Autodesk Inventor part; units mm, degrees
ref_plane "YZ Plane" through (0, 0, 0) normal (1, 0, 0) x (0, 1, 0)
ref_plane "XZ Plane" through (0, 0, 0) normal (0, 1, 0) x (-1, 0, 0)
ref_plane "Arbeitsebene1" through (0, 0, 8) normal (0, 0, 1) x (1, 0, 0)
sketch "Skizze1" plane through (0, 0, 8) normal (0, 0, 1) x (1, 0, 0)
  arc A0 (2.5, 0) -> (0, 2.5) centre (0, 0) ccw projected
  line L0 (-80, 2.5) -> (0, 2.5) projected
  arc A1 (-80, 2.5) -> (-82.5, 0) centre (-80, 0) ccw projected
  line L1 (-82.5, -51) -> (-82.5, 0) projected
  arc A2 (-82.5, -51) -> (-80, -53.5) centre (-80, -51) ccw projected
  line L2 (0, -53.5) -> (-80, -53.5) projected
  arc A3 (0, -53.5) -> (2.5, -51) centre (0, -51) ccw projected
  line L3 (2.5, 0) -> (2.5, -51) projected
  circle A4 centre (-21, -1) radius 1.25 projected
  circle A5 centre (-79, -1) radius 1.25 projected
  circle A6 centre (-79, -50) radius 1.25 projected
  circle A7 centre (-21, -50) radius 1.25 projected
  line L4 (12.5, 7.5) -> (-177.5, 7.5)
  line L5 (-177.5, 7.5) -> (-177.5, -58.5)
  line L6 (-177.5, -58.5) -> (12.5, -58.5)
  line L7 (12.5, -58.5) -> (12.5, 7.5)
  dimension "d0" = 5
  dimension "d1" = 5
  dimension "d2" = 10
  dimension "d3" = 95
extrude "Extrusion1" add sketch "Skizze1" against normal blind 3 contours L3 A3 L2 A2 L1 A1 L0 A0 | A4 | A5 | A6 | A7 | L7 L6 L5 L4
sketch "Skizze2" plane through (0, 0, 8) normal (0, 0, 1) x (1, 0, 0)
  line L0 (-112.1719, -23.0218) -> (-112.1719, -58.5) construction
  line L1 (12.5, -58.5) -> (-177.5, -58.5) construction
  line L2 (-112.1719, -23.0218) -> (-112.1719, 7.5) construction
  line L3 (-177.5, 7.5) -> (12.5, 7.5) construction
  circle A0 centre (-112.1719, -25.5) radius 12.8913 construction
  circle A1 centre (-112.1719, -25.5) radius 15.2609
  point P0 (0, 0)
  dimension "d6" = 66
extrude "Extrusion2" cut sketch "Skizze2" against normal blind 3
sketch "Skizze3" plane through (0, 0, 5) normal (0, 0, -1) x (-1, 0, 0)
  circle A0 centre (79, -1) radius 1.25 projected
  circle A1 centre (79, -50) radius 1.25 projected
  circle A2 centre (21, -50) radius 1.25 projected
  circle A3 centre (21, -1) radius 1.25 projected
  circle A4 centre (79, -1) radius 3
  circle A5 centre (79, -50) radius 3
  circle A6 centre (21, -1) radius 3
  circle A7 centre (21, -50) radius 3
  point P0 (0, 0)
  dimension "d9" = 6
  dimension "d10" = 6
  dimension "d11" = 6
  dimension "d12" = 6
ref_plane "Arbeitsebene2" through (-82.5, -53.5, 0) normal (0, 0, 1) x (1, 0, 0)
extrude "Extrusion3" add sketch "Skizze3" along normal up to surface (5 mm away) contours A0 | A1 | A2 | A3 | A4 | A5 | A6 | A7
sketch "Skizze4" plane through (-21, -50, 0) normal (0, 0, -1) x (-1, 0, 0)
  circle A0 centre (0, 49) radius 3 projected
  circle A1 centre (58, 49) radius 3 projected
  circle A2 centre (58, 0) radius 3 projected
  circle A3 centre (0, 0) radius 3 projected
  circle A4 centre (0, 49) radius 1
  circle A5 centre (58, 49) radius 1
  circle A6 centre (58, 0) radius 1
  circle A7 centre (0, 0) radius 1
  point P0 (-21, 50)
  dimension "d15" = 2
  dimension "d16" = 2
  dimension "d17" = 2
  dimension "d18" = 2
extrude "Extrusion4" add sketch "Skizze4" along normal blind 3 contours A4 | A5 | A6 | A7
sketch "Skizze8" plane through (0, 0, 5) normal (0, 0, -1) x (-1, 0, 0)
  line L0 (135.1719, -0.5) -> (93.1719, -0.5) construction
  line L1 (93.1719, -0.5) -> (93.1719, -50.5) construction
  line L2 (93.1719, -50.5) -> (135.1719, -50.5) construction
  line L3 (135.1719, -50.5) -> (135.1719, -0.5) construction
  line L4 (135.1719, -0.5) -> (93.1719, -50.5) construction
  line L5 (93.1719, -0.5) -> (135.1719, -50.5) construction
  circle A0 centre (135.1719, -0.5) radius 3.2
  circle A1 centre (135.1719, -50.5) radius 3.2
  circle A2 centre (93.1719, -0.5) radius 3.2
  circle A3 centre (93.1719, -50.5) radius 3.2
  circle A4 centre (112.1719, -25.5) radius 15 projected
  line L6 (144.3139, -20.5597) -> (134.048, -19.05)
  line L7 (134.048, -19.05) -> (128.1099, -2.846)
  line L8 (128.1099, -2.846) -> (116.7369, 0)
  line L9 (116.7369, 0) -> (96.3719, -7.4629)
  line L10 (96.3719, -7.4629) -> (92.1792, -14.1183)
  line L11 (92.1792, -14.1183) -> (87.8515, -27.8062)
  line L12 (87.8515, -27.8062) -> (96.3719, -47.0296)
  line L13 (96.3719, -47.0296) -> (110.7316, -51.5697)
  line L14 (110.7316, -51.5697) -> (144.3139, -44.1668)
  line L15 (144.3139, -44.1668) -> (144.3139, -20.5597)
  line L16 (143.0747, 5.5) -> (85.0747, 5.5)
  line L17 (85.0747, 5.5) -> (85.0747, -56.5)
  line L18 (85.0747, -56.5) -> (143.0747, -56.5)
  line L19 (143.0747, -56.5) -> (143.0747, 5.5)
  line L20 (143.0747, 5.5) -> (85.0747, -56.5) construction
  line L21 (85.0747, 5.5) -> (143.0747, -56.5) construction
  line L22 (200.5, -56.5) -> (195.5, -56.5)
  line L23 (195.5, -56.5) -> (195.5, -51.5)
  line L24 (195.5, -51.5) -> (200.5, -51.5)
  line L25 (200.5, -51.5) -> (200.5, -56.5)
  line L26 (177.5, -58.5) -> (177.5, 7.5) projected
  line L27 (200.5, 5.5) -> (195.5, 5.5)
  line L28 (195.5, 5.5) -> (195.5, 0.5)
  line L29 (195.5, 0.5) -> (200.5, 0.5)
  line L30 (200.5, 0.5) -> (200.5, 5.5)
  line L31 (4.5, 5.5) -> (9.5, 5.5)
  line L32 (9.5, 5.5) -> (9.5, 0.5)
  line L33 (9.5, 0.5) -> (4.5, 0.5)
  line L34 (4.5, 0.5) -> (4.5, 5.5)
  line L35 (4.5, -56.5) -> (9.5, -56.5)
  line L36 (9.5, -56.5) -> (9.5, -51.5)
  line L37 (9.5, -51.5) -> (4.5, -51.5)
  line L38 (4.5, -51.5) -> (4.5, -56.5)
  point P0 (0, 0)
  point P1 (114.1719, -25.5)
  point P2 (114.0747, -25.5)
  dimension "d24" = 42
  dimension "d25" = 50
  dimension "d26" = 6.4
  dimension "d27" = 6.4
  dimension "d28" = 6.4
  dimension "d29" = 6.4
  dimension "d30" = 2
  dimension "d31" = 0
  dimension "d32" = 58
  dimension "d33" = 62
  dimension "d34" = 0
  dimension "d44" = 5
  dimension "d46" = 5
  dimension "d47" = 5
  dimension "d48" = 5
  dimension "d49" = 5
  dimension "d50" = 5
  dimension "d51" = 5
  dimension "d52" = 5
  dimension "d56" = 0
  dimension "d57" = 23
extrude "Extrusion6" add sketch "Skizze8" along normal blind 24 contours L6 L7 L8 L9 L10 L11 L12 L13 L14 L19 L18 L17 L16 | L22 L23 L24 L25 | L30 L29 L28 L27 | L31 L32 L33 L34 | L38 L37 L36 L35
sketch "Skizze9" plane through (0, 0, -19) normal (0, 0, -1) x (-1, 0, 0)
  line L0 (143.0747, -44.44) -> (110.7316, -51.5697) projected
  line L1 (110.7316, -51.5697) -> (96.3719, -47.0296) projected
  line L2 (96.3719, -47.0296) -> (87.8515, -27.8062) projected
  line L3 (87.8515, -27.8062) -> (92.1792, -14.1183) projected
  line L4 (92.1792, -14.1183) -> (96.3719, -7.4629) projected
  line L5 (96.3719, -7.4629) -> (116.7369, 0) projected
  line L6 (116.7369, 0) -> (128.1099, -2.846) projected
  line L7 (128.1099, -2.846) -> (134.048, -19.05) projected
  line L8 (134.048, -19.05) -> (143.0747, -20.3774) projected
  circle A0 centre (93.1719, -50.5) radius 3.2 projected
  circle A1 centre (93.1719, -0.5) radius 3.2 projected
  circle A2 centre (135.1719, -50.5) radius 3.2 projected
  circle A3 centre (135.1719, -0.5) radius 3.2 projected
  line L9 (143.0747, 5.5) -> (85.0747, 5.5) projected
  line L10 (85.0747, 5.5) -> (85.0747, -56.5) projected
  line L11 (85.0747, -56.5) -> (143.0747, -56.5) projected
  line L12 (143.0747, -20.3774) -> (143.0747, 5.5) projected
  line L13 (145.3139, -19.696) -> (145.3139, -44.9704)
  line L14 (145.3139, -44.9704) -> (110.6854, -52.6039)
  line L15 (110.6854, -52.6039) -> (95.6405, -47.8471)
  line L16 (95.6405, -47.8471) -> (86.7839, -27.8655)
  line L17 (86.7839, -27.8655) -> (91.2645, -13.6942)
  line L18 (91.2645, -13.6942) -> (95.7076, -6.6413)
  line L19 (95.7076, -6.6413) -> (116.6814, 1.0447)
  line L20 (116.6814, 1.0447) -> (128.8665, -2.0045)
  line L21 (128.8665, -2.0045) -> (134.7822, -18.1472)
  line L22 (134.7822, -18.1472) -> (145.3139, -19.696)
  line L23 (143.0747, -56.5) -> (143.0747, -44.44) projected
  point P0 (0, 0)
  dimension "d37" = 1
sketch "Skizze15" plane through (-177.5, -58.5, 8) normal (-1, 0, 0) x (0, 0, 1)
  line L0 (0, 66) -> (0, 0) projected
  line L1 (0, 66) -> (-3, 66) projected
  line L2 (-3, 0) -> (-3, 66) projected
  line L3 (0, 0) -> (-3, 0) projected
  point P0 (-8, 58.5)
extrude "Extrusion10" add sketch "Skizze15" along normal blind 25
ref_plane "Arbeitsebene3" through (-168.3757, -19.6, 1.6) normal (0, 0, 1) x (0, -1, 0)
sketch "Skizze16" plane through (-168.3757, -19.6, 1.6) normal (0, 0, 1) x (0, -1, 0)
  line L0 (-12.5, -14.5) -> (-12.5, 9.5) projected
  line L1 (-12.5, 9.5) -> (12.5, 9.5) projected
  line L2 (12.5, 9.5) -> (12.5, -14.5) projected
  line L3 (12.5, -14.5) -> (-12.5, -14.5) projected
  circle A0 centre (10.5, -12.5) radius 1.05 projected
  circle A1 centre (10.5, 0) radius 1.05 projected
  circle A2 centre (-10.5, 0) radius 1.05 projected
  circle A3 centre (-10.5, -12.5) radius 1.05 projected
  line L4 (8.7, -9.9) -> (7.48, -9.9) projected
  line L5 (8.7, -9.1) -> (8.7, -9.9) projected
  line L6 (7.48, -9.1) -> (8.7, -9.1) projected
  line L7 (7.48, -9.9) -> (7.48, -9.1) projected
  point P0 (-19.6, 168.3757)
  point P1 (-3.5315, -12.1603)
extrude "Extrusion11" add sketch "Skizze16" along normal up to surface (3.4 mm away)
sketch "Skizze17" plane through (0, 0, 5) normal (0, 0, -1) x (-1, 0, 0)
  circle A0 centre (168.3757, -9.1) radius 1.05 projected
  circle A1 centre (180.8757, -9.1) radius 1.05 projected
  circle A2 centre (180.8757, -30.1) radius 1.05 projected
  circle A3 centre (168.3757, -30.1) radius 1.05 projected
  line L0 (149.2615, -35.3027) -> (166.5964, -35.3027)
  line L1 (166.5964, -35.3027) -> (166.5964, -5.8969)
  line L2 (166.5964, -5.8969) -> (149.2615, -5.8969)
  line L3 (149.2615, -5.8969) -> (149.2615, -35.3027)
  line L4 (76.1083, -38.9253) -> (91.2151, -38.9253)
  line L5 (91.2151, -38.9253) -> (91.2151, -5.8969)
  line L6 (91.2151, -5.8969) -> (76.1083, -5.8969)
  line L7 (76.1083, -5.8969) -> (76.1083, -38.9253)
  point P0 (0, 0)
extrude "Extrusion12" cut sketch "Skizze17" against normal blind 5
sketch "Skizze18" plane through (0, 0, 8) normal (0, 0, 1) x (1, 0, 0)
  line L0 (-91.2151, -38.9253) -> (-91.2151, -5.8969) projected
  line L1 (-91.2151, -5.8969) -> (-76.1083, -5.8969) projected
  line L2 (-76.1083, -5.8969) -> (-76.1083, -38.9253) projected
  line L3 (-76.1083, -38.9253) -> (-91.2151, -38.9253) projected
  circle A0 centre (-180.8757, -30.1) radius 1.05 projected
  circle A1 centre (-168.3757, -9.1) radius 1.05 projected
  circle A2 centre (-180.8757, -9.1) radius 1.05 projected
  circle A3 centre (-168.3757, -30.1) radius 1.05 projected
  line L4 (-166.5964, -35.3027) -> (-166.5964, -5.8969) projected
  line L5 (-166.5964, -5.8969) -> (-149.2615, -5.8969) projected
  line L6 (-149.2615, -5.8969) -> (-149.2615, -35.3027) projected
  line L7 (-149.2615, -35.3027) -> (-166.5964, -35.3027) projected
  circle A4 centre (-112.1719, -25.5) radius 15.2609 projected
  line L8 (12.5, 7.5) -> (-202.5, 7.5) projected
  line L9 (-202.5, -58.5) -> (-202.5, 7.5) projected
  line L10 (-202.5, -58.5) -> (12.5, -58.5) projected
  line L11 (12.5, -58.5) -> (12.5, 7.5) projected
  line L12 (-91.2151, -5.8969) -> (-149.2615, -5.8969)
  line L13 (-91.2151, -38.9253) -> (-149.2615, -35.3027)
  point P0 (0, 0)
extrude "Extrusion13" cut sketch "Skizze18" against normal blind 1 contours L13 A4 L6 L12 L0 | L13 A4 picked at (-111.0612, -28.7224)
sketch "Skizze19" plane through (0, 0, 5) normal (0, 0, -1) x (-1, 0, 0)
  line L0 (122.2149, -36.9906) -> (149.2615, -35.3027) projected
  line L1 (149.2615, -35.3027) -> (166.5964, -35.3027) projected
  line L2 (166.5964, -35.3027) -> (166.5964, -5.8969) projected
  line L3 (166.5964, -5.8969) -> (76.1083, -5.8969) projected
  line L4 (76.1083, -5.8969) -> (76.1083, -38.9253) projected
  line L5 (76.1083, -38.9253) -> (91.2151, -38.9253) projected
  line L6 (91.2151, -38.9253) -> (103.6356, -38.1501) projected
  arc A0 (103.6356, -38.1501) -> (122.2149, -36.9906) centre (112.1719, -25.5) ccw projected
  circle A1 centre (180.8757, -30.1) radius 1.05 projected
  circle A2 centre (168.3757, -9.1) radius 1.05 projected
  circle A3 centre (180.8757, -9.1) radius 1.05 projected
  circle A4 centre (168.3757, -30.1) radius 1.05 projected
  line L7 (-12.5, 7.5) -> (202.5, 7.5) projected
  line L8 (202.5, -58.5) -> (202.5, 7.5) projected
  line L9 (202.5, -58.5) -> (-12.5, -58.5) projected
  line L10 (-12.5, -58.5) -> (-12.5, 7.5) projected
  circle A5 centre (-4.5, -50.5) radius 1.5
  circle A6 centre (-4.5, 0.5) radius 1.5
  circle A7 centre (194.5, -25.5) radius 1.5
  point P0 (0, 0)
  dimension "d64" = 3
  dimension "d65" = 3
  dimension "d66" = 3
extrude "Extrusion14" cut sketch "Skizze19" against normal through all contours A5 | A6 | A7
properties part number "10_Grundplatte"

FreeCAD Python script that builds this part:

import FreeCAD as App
import Part
import Sketcher

V = App.Vector
Q = App.Units.Quantity


def add_polygon(sketch, points):
    """Adds a closed chain of lines whose ends are joined by coincident constraints."""
    first, n = sketch.GeometryCount, len(points)
    for a, b in zip(points, points[1:] + points[:1]):
        sketch.addGeometry(Part.LineSegment(App.Vector(*a, 0), App.Vector(*b, 0)), False)
    for i in range(n):
        sketch.addConstraint(Sketcher.Constraint("Coincident", first + i, 2, first + (i + 1) % n, 1))

doc = App.newDocument("Part")
params = doc.addObject("Spreadsheet::Sheet", "Params")
for row, (alias, value) in enumerate([
    ("sketch1_width", "190 mm"),
    ("sketch1_height", "66 mm"),
    ("pad1_length", "3 mm"),
    ("pocket1_length", "3 mm"),
    ("sketch3_diameter", "6 mm"),
    ("pad2_length", "5 mm"),
    ("sketch4_diameter", "2 mm"),
    ("pad3_length", "3 mm"),
    ("sketch5_diameter", "6.4 mm"),
    ("sketch5_width", "58 mm"),
    ("sketch5_width2", "5 mm"),
    ("sketch5_height", "62 mm"),
    ("sketch5_height2", "12.06 mm"),
    ("pad4_length", "24 mm"),
    ("sketch6_width", "66 mm"),
    ("sketch6_height", "3 mm"),
    ("pad5_length", "25 mm"),
    ("sketch7_diameter", "2.1 mm"),
    ("sketch7_width", "24 mm"),
    ("sketch7_height", "25 mm"),
    ("sketch7_width2", "0.8 mm"),
    ("sketch7_height2", "1.22 mm"),
    ("pad6_length", "3.4 mm"),
    ("sketch8_diameter", "2.1 mm"),
    ("pocket2_length", "5 mm"),
    ("pocket3_length", "1 mm"),
    ("sketch10_diameter", "3 mm"),
], start=1):
    params.set(f"A{row}", alias)
    params.set(f"B{row}", "=" + value)
    params.setAlias(f"B{row}", alias)

body = doc.addObject("PartDesign::Body", "Body")
body.AllowCompound = True

# Sketch on XY plane
sketch1 = body.newObject("Sketcher::SketchObject", "Sketch")
sketch1.AttachmentSupport = (doc.getObject("XY_Plane"), [""])
sketch1.MapMode = "FlatFace"
sketch1.AttachmentOffset = App.Placement(V(0, 0, 8), App.Rotation())
add_polygon(sketch1, [(12, -58), (12, 8), (-178, 8), (-178, -58)])  # lines 0-3
sketch1.addConstraint(Sketcher.Constraint("Vertical", 0))
sketch1.addConstraint(Sketcher.Constraint("Horizontal", 1))
sketch1.addConstraint(Sketcher.Constraint("Vertical", 2))
sketch1.addConstraint(Sketcher.Constraint("Horizontal", 3))
sketch1.addConstraint(Sketcher.Constraint("DistanceX", 1, 2, 1, 1, Q("190 mm")))
sketch1.addConstraint(Sketcher.Constraint("DistanceY", 0, 1, 0, 2, Q("66 mm")))
sketch1.addConstraint(Sketcher.Constraint("DistanceX", -1, 1, 0, 2, Q("12.5 mm")))
sketch1.addConstraint(Sketcher.Constraint("DistanceY", -1, 1, 0, 2, Q("7.5 mm")))
sketch1.setExpression("Constraints[8]", "Params.sketch1_width")
sketch1.setExpression("Constraints[9]", "Params.sketch1_height")
pad1 = body.newObject("PartDesign::Pad", "Pad")
pad1.Profile = sketch1
pad1.setExpression("Length", "Params.pad1_length")
pad1.Reversed = True

# Sketch on XY plane
sketch2 = body.newObject("Sketcher::SketchObject", "Sketch001")
sketch2.AttachmentSupport = (doc.getObject("XY_Plane"), [""])
sketch2.MapMode = "FlatFace"
sketch2.AttachmentOffset = App.Placement(V(0, 0, 8), App.Rotation())
sketch2.addGeometry(Part.Circle(V(-112, -26, 0), V(0, 0, 1), 15), False)
sketch2.addConstraint(Sketcher.Constraint("Diameter", 0, Q("30.5218 mm")))
sketch2.addConstraint(Sketcher.Constraint("DistanceY", 0, 3, -1, 1, Q("25.5 mm")))
sketch2.addConstraint(Sketcher.Constraint("DistanceX", 0, 3, -1, 1, Q("112.172 mm")))
pocket1 = body.newObject("PartDesign::Pocket", "Pocket")
pocket1.Profile = sketch2
pocket1.setExpression("Length", "Params.pocket1_length")

# Sketch on XY plane
sketch3 = body.newObject("Sketcher::SketchObject", "Sketch002")
sketch3.AttachmentSupport = (doc.getObject("XY_Plane"), [""])
sketch3.MapMode = "FlatFace"
sketch3.AttachmentOffset = App.Placement(V(0, 0, 5), App.Rotation())
sketch3.addGeometry(Part.Circle(V(-79, -1, 0), V(0, 0, 1), 3), False)
sketch3.addGeometry(Part.Circle(V(-79, -50, 0), V(0, 0, 1), 3), False)
sketch3.addGeometry(Part.Circle(V(-21, -50, 0), V(0, 0, 1), 3), False)
sketch3.addGeometry(Part.Circle(V(-21, -1, 0), V(0, 0, 1), 3), False)
sketch3.addConstraint(Sketcher.Constraint("Equal", 0, 1))
sketch3.addConstraint(Sketcher.Constraint("Equal", 1, 2))
sketch3.addConstraint(Sketcher.Constraint("Equal", 2, 3))
sketch3.addConstraint(Sketcher.Constraint("Horizontal", 1, 3, 2, 3))
sketch3.addConstraint(Sketcher.Constraint("Horizontal", 0, 3, 3, 3))
sketch3.addConstraint(Sketcher.Constraint("Vertical", 0, 3, 1, 3))
sketch3.addConstraint(Sketcher.Constraint("Vertical", 2, 3, 3, 3))
sketch3.addConstraint(Sketcher.Constraint("Diameter", 0, Q("6 mm")))
sketch3.addConstraint(Sketcher.Constraint("DistanceX", 0, 3, -1, 1, Q("79 mm")))
sketch3.addConstraint(Sketcher.Constraint("DistanceY", 0, 3, -1, 1, Q("1 mm")))
sketch3.addConstraint(Sketcher.Constraint("DistanceY", 1, 3, -1, 1, Q("50 mm")))
sketch3.addConstraint(Sketcher.Constraint("DistanceX", 2, 3, -1, 1, Q("21 mm")))
sketch3.setExpression("Constraints[7]", "Params.sketch3_diameter")
pad2 = body.newObject("PartDesign::Pad", "Pad001")
pad2.Profile = sketch3
pad2.setExpression("Length", "Params.pad2_length")
pad2.Reversed = True

# Sketch on XY plane
sketch4 = body.newObject("Sketcher::SketchObject", "Sketch003")
sketch4.AttachmentSupport = (doc.getObject("XY_Plane"), [""])
sketch4.MapMode = "FlatFace"
sketch4.addGeometry(Part.Circle(V(-21, -1, 0), V(0, 0, 1), 1), False)
sketch4.addGeometry(Part.Circle(V(-79, -1, 0), V(0, 0, 1), 1), False)
sketch4.addGeometry(Part.Circle(V(-79, -50, 0), V(0, 0, 1), 1), False)
sketch4.addGeometry(Part.Circle(V(-21, -50, 0), V(0, 0, 1), 1), False)
sketch4.addConstraint(Sketcher.Constraint("Equal", 0, 1))
sketch4.addConstraint(Sketcher.Constraint("Equal", 1, 2))
sketch4.addConstraint(Sketcher.Constraint("Equal", 2, 3))
sketch4.addConstraint(Sketcher.Constraint("Horizontal", 0, 3, 1, 3))
sketch4.addConstraint(Sketcher.Constraint("Horizontal", 2, 3, 3, 3))
sketch4.addConstraint(Sketcher.Constraint("Vertical", 1, 3, 2, 3))
sketch4.addConstraint(Sketcher.Constraint("Vertical", 0, 3, 3, 3))
sketch4.addConstraint(Sketcher.Constraint("Diameter", 0, Q("2 mm")))
sketch4.addConstraint(Sketcher.Constraint("DistanceX", 0, 3, -1, 1, Q("21 mm")))
sketch4.addConstraint(Sketcher.Constraint("DistanceY", 0, 3, -1, 1, Q("1 mm")))
sketch4.addConstraint(Sketcher.Constraint("DistanceX", 1, 3, -1, 1, Q("79 mm")))
sketch4.addConstraint(Sketcher.Constraint("DistanceY", 2, 3, -1, 1, Q("50 mm")))
sketch4.setExpression("Constraints[7]", "Params.sketch4_diameter")
pad3 = body.newObject("PartDesign::Pad", "Pad002")
pad3.Profile = sketch4
pad3.setExpression("Length", "Params.pad3_length")
pad3.Reversed = True

# Sketch on XY plane
sketch5 = body.newObject("Sketcher::SketchObject", "Sketch004")
sketch5.AttachmentSupport = (doc.getObject("XY_Plane"), [""])
sketch5.MapMode = "FlatFace"
sketch5.AttachmentOffset = App.Placement(V(0, 0, 5), App.Rotation())
add_polygon(sketch5, [(-134, -19.1), (-143.1, -20.4), (-143.1, 5.5), (-85.1, 5.5), (-85.1, -56.5), (-143.1, -56.5), (-143.1, -44.4), (-110.7, -51.6), (-96.4, -47), (-87.9, -27.8), (-92.2, -14.1), (-96.4, -7.5), (-116.7, 0), (-128.1, -2.8)])  # lines 0-13
sketch5.addGeometry(Part.Circle(V(-93.2, -50.5, 0), V(0, 0, 1), 3.2), False)  # 14
sketch5.addGeometry(Part.Circle(V(-135.2, -50.5, 0), V(0, 0, 1), 3.2), False)  # 15
sketch5.addGeometry(Part.Circle(V(-93.2, -0.5, 0), V(0, 0, 1), 3.2), False)  # 16
sketch5.addGeometry(Part.Circle(V(-135.2, -0.5, 0), V(0, 0, 1), 3.2), False)  # 17
add_polygon(sketch5, [(-195.5, -56.5), (-200.5, -56.5), (-200.5, -51.5), (-195.5, -51.5)])  # lines 18-21
add_polygon(sketch5, [(-200.5, 0.5), (-200.5, 5.5), (-195.5, 5.5), (-195.5, 0.5)])  # lines 22-25
add_polygon(sketch5, [(-9.5, 5.5), (-4.5, 5.5), (-4.5, 0.5), (-9.5, 0.5)])  # lines 26-29
add_polygon(sketch5, [(-4.5, -51.5), (-4.5, -56.5), (-9.5, -56.5), (-9.5, -51.5)])  # lines 30-33
sketch5.addConstraint(Sketcher.Constraint("Vertical", 1))
sketch5.addConstraint(Sketcher.Constraint("Horizontal", 2))
sketch5.addConstraint(Sketcher.Constraint("Vertical", 3))
sketch5.addConstraint(Sketcher.Constraint("Horizontal", 4))
sketch5.addConstraint(Sketcher.Constraint("Vertical", 5))
sketch5.addConstraint(Sketcher.Constraint("Horizontal", 18))
sketch5.addConstraint(Sketcher.Constraint("Vertical", 19))
sketch5.addConstraint(Sketcher.Constraint("Horizontal", 20))
sketch5.addConstraint(Sketcher.Constraint("Vertical", 21))
sketch5.addConstraint(Sketcher.Constraint("Vertical", 22))
sketch5.addConstraint(Sketcher.Constraint("Horizontal", 23))
sketch5.addConstraint(Sketcher.Constraint("Vertical", 24))
sketch5.addConstraint(Sketcher.Constraint("Horizontal", 25))
sketch5.addConstraint(Sketcher.Constraint("Horizontal", 26))
sketch5.addConstraint(Sketcher.Constraint("Vertical", 27))
sketch5.addConstraint(Sketcher.Constraint("Horizontal", 28))
sketch5.addConstraint(Sketcher.Constraint("Vertical", 29))
sketch5.addConstraint(Sketcher.Constraint("Vertical", 30))
sketch5.addConstraint(Sketcher.Constraint("Horizontal", 31))
sketch5.addConstraint(Sketcher.Constraint("Vertical", 32))
sketch5.addConstraint(Sketcher.Constraint("Horizontal", 33))
sketch5.addConstraint(Sketcher.Constraint("Equal", 14, 15))
sketch5.addConstraint(Sketcher.Constraint("Equal", 15, 16))
sketch5.addConstraint(Sketcher.Constraint("Equal", 16, 17))
sketch5.addConstraint(Sketcher.Constraint("PointOnObject", 11, 2, -1))
sketch5.addConstraint(Sketcher.Constraint("Perpendicular", 7, 9))
sketch5.addConstraint(Sketcher.Constraint("Perpendicular", 11, 13))
sketch5.addConstraint(Sketcher.Constraint("Horizontal", 14, 3, 15, 3))
sketch5.addConstraint(Sketcher.Constraint("Horizontal", 16, 3, 17, 3))
sketch5.addConstraint(Sketcher.Constraint("Horizontal", 4, 2, 18, 2))
sketch5.addConstraint(Sketcher.Constraint("Horizontal", 2, 2, 22, 2))
sketch5.addConstraint(Sketcher.Constraint("Horizontal", 23, 2, 26, 2))
sketch5.addConstraint(Sketcher.Constraint("Horizontal", 25, 2, 27, 2))
sketch5.addConstraint(Sketcher.Constraint("Horizontal", 21, 2, 30, 2))
sketch5.addConstraint(Sketcher.Constraint("Horizontal", 20, 2, 32, 2))
sketch5.addConstraint(Sketcher.Constraint("Vertical", 14, 3, 16, 3))
sketch5.addConstraint(Sketcher.Constraint("Vertical", 15, 3, 17, 3))
sketch5.addConstraint(Sketcher.Constraint("Vertical", 1, 2, 4, 2))
sketch5.addConstraint(Sketcher.Constraint("Vertical", 7, 2, 10, 2))
sketch5.addConstraint(Sketcher.Constraint("Vertical", 19, 2, 22, 2))
sketch5.addConstraint(Sketcher.Constraint("Vertical", 21, 2, 23, 2))
sketch5.addConstraint(Sketcher.Constraint("Vertical", 27, 2, 30, 2))
sketch5.addConstraint(Sketcher.Constraint("Vertical", 29, 2, 31, 2))
sketch5.addConstraint(Sketcher.Constraint("Equal", 25, 26))
sketch5.addConstraint(Sketcher.Constraint("Equal", 33, 19))
sketch5.addConstraint(Sketcher.Constraint("Equal", 21, 22))
sketch5.addConstraint(Sketcher.Constraint("Diameter", 14, Q("6.4 mm")))
sketch5.addConstraint(Sketcher.Constraint("DistanceX", 2, 1, 2, 2, Q("58 mm")))
sketch5.addConstraint(Sketcher.Constraint("DistanceX", 18, 2, 18, 1, Q("5 mm")))
sketch5.addConstraint(Sketcher.Constraint("DistanceY", 3, 2, 3, 1, Q("62 mm")))
sketch5.addConstraint(Sketcher.Constraint("DistanceX", 15, 3, 14, 3, Q("42 mm")))
sketch5.addConstraint(Sketcher.Constraint("DistanceY", 14, 3, 16, 3, Q("50 mm")))
sketch5.addConstraint(Sketcher.Constraint("DistanceY", 17, 3, 1, 2, Q("6 mm")))
sketch5.addConstraint(Sketcher.Constraint("DistanceY", 5, 1, 5, 2, Q("12.06 mm")))
sketch5.addConstraint(Sketcher.Constraint("DistanceY", 14, 3, -1, 1, Q("50.5 mm")))
sketch5.addConstraint(Sketcher.Constraint("DistanceX", 18, 2, -1, 1, Q("200.5 mm")))
sketch5.addConstraint(Sketcher.Constraint("DistanceX", 26, 2, -1, 1, Q("4.5 mm")))
sketch5.addConstraint(Sketcher.Constraint("Angle", 10, Q("122.2097 deg")))
sketch5.addConstraint(Sketcher.Constraint("Angle", 12, Q("-165.9507 deg")))
sketch5.addConstraint(Sketcher.Constraint("DistanceX", 7, 2, 14, 3, Q("3.2 mm")))
sketch5.addConstraint(Sketcher.Constraint("DistanceX", 12, 2, -1, 1, Q("128.11 mm")))
sketch5.addConstraint(Sketcher.Constraint("DistanceY", 13, 2, -1, 1, Q("19.05 mm")))
sketch5.addConstraint(Sketcher.Constraint("DistanceY", 6, 2, 7, 2, Q("4.54 mm")))
sketch5.addConstraint(Sketcher.Constraint("DistanceX", 6, 2, 8, 2, Q("22.88 mm")))
sketch5.addConstraint(Sketcher.Constraint("Distance", 8, Q("21.027 mm")))
sketch5.addConstraint(Sketcher.Constraint("Distance", 10, Q("7.866 mm")))
sketch5.addConstraint(Sketcher.Constraint("DistanceY", 1, 1, 1, 2, Q("25.8775 mm")))
sketch5.addConstraint(Sketcher.Constraint("DistanceX", 14, 3, -1, 1, Q("93.172 mm")))
sketch5.addConstraint(Sketcher.Constraint("DistanceY", 10, 2, -1, 1, Q("7.463 mm")))
sketch5.addConstraint(Sketcher.Constraint("DistanceX", 11, 2, -1, 1, Q("116.737 mm")))
sketch5.addConstraint(Sketcher.Constraint("DistanceX", 6, 2, 3, 2, Q("25.657 mm")))
sketch5.addConstraint(Sketcher.Constraint("DistanceY", 8, 2, 9, 2, Q("13.688 mm")))
sketch5.setExpression("Constraints[76]", "Params.sketch5_diameter")
sketch5.setExpression("Constraints[77]", "Params.sketch5_width")
sketch5.setExpression("Constraints[78]", "Params.sketch5_width2")
sketch5.setExpression("Constraints[79]", "Params.sketch5_height")
sketch5.setExpression("Constraints[83]", "Params.sketch5_height2")
pad4 = body.newObject("PartDesign::Pad", "Pad003")
pad4.Profile = sketch5
pad4.setExpression("Length", "Params.pad4_length")
pad4.Reversed = True

# Sketch on YZ plane
sketch6 = body.newObject("Sketcher::SketchObject", "Sketch005")
sketch6.AttachmentSupport = (doc.getObject("YZ_Plane"), [""])
sketch6.MapMode = "FlatFace"
sketch6.AttachmentOffset = App.Placement(V(0, 0, -177.5), App.Rotation())
add_polygon(sketch6, [(-58.5, 8), (7.5, 8), (7.5, 5), (-58.5, 5)])  # lines 0-3
sketch6.addConstraint(Sketcher.Constraint("Horizontal", 0))
sketch6.addConstraint(Sketcher.Constraint("Vertical", 1))
sketch6.addConstraint(Sketcher.Constraint("Horizontal", 2))
sketch6.addConstraint(Sketcher.Constraint("Vertical", 3))
sketch6.addConstraint(Sketcher.Constraint("DistanceX", 0, 1, 0, 2, Q("66 mm")))
sketch6.addConstraint(Sketcher.Constraint("DistanceY", 1, 2, 1, 1, Q("3 mm")))
sketch6.addConstraint(Sketcher.Constraint("DistanceY", -1, 1, 0, 2, Q("8 mm")))
sketch6.addConstraint(Sketcher.Constraint("DistanceX", -1, 1, 0, 2, Q("7.5 mm")))
sketch6.setExpression("Constraints[8]", "Params.sketch6_width")
sketch6.setExpression("Constraints[9]", "Params.sketch6_height")
pad5 = body.newObject("PartDesign::Pad", "Pad004")
pad5.Profile = sketch6
pad5.setExpression("Length", "Params.pad5_length")
pad5.Reversed = True

# Sketch on XY plane
sketch7 = body.newObject("Sketcher::SketchObject", "Sketch006")
sketch7.AttachmentSupport = (doc.getObject("XY_Plane"), [""])
sketch7.MapMode = "FlatFace"
sketch7.AttachmentOffset = App.Placement(V(0, 0, 1.6), App.Rotation())
add_polygon(sketch7, [(-158.9, -7.1), (-182.9, -7.1), (-182.9, -32.1), (-158.9, -32.1)])  # lines 0-3
sketch7.addGeometry(Part.Circle(V(-180.9, -9.1, 0), V(0, 0, 1), 1.1), False)  # 4
sketch7.addGeometry(Part.Circle(V(-180.9, -30.1, 0), V(0, 0, 1), 1.1), False)  # 5
add_polygon(sketch7, [(-177.5, -28.3), (-178.3, -28.3), (-178.3, -27.1), (-177.5, -27.1)])  # lines 6-9
sketch7.addGeometry(Part.Circle(V(-168.4, -9.1, 0), V(0, 0, 1), 1.1), False)  # 10
sketch7.addGeometry(Part.Circle(V(-168.4, -30.1, 0), V(0, 0, 1), 1.1), False)  # 11
sketch7.addConstraint(Sketcher.Constraint("Horizontal", 0))
sketch7.addConstraint(Sketcher.Constraint("Vertical", 1))
sketch7.addConstraint(Sketcher.Constraint("Horizontal", 2))
sketch7.addConstraint(Sketcher.Constraint("Vertical", 3))
sketch7.addConstraint(Sketcher.Constraint("Horizontal", 6))
sketch7.addConstraint(Sketcher.Constraint("Vertical", 7))
sketch7.addConstraint(Sketcher.Constraint("Horizontal", 8))
sketch7.addConstraint(Sketcher.Constraint("Vertical", 9))
sketch7.addConstraint(Sketcher.Constraint("Equal", 4, 5))
sketch7.addConstraint(Sketcher.Constraint("Equal", 5, 10))
sketch7.addConstraint(Sketcher.Constraint("Equal", 10, 11))
sketch7.addConstraint(Sketcher.Constraint("Horizontal", 4, 3, 10, 3))
sketch7.addConstraint(Sketcher.Constraint("Horizontal", 5, 3, 11, 3))
sketch7.addConstraint(Sketcher.Constraint("Vertical", 4, 3, 5, 3))
sketch7.addConstraint(Sketcher.Constraint("Vertical", 10, 3, 11, 3))
sketch7.addConstraint(Sketcher.Constraint("Diameter", 4, Q("2.1 mm")))
sketch7.addConstraint(Sketcher.Constraint("DistanceX", 0, 2, 0, 1, Q("24 mm")))
sketch7.addConstraint(Sketcher.Constraint("DistanceY", 1, 2, 1, 1, Q("25 mm")))
sketch7.addConstraint(Sketcher.Constraint("DistanceX", 6, 2, 6, 1, Q("0.8 mm")))
sketch7.addConstraint(Sketcher.Constraint("DistanceY", 5, 3, 4, 3, Q("21 mm")))
sketch7.addConstraint(Sketcher.Constraint("DistanceX", 0, 2, 4, 3, Q("2 mm")))
sketch7.addConstraint(Sketcher.Constraint("DistanceY", 4, 3, 0, 2, Q("2 mm")))
sketch7.addConstraint(Sketcher.Constraint("DistanceY", 7, 1, 7, 2, Q("1.22 mm")))
sketch7.addConstraint(Sketcher.Constraint("DistanceY", 4, 3, -1, 1, Q("9.1 mm")))
sketch7.addConstraint(Sketcher.Constraint("DistanceY", 6, 2, -1, 1, Q("28.3 mm")))
sketch7.addConstraint(Sketcher.Constraint("DistanceX", 4, 3, 10, 3, Q("12.5 mm")))
sketch7.addConstraint(Sketcher.Constraint("DistanceX", 5, 3, 6, 2, Q("2.6 mm")))
sketch7.addConstraint(Sketcher.Constraint("DistanceX", 4, 3, -1, 1, Q("180.8757 mm")))
sketch7.setExpression("Constraints[23]", "Params.sketch7_diameter")
sketch7.setExpression("Constraints[24]", "Params.sketch7_width")
sketch7.setExpression("Constraints[25]", "Params.sketch7_height")
sketch7.setExpression("Constraints[26]", "Params.sketch7_width2")
sketch7.setExpression("Constraints[30]", "Params.sketch7_height2")
pad6 = body.newObject("PartDesign::Pad", "Pad005")
pad6.Profile = sketch7
pad6.setExpression("Length", "Params.pad6_length")

# Sketch on XY plane
sketch8 = body.newObject("Sketcher::SketchObject", "Sketch007")
sketch8.AttachmentSupport = (doc.getObject("XY_Plane"), [""])
sketch8.MapMode = "FlatFace"
sketch8.AttachmentOffset = App.Placement(V(0, 0, 5), App.Rotation())
sketch8.addGeometry(Part.Circle(V(-168.4, -9.1, 0), V(0, 0, 1), 1.1), False)  # 0
sketch8.addGeometry(Part.Circle(V(-180.9, -9.1, 0), V(0, 0, 1), 1.1), False)  # 1
sketch8.addGeometry(Part.Circle(V(-180.9, -30.1, 0), V(0, 0, 1), 1.1), False)  # 2
sketch8.addGeometry(Part.Circle(V(-168.4, -30.1, 0), V(0, 0, 1), 1.1), False)  # 3
add_polygon(sketch8, [(-149.3, -5.9), (-149.3, -35.3), (-166.6, -35.3), (-166.6, -5.9)])  # lines 4-7
add_polygon(sketch8, [(-76.1, -5.9), (-76.1, -38.9), (-91.2, -38.9), (-91.2, -5.9)])  # lines 8-11
sketch8.addConstraint(Sketcher.Constraint("Vertical", 4))
sketch8.addConstraint(Sketcher.Constraint("Horizontal", 5))
sketch8.addConstraint(Sketcher.Constraint("Vertical", 6))
sketch8.addConstraint(Sketcher.Constraint("Horizontal", 7))
sketch8.addConstraint(Sketcher.Constraint("Vertical", 8))
sketch8.addConstraint(Sketcher.Constraint("Horizontal", 9))
sketch8.addConstraint(Sketcher.Constraint("Vertical", 10))
sketch8.addConstraint(Sketcher.Constraint("Horizontal", 11))
sketch8.addConstraint(Sketcher.Constraint("Equal", 0, 1))
sketch8.addConstraint(Sketcher.Constraint("Equal", 1, 2))
sketch8.addConstraint(Sketcher.Constraint("Equal", 2, 3))
sketch8.addConstraint(Sketcher.Constraint("Horizontal", 0, 3, 1, 3))
sketch8.addConstraint(Sketcher.Constraint("Horizontal", 2, 3, 3, 3))
sketch8.addConstraint(Sketcher.Constraint("Horizontal", 7, 2, 10, 2))
sketch8.addConstraint(Sketcher.Constraint("Vertical", 1, 3, 2, 3))
sketch8.addConstraint(Sketcher.Constraint("Vertical", 0, 3, 3, 3))
sketch8.addConstraint(Sketcher.Constraint("Diameter", 0, Q("2.1 mm")))
sketch8.addConstraint(Sketcher.Constraint("DistanceY", 2, 3, 1, 3, Q("21 mm")))
sketch8.addConstraint(Sketcher.Constraint("DistanceY", 0, 3, -1, 1, Q("9.1 mm")))
sketch8.addConstraint(Sketcher.Constraint("DistanceX", 1, 3, 0, 3, Q("12.5 mm")))
sketch8.addConstraint(Sketcher.Constraint("DistanceX", 5, 2, 5, 1, Q("17.335 mm")))
sketch8.addConstraint(Sketcher.Constraint("DistanceX", 9, 2, 9, 1, Q("15.1068 mm")))
sketch8.addConstraint(Sketcher.Constraint("DistanceY", 4, 2, 4, 1, Q("29.4058 mm")))
sketch8.addConstraint(Sketcher.Constraint("DistanceY", 8, 2, 8, 1, Q("33.0284 mm")))
sketch8.addConstraint(Sketcher.Constraint("DistanceY", 6, 2, -1, 1, Q("5.897 mm")))
sketch8.addConstraint(Sketcher.Constraint("DistanceX", 9, 2, -1, 1, Q("91.215 mm")))
sketch8.addConstraint(Sketcher.Constraint("DistanceX", 5, 2, 8, 2, Q("90.488 mm")))
sketch8.addConstraint(Sketcher.Constraint("DistanceX", 0, 3, -1, 1, Q("168.3757 mm")))
sketch8.setExpression("Constraints[24]", "Params.sketch8_diameter")
pocket2 = body.newObject("PartDesign::Pocket", "Pocket001")
pocket2.Profile = sketch8
pocket2.setExpression("Length", "Params.pocket2_length")
pocket2.Reversed = True

# Sketch on XY plane
sketch9 = body.newObject("Sketcher::SketchObject", "Sketch008")
sketch9.AttachmentSupport = (doc.getObject("XY_Plane"), [""])
sketch9.MapMode = "FlatFace"
sketch9.AttachmentOffset = App.Placement(V(0, 0, 8), App.Rotation())
add_polygon(sketch9, [(-91, -39), (-91, -6), (-149, -6), (-149, -35)])  # lines 0-3
sketch9.addConstraint(Sketcher.Constraint("Vertical", 0))
sketch9.addConstraint(Sketcher.Constraint("Horizontal", 1))
sketch9.addConstraint(Sketcher.Constraint("Vertical", 2))
sketch9.addConstraint(Sketcher.Constraint("Angle", 3, Q("-3.5711 deg")))
sketch9.addConstraint(Sketcher.Constraint("DistanceX", 1, 2, 1, 1, Q("58.0464 mm")))
sketch9.addConstraint(Sketcher.Constraint("DistanceY", 0, 1, 0, 2, Q("33.0284 mm")))
sketch9.addConstraint(Sketcher.Constraint("DistanceX", 0, 2, -1, 1, Q("91.215 mm")))
sketch9.addConstraint(Sketcher.Constraint("DistanceY", 0, 2, -1, 1, Q("5.897 mm")))
pocket3 = body.newObject("PartDesign::Pocket", "Pocket002")
pocket3.Profile = sketch9
pocket3.setExpression("Length", "Params.pocket3_length")

# Sketch on XY plane
sketch10 = body.newObject("Sketcher::SketchObject", "Sketch009")
sketch10.AttachmentSupport = (doc.getObject("XY_Plane"), [""])
sketch10.MapMode = "FlatFace"
sketch10.AttachmentOffset = App.Placement(V(0, 0, 5), App.Rotation())
sketch10.addGeometry(Part.Circle(V(4.5, -50.5, 0), V(0, 0, 1), 1.5), False)
sketch10.addGeometry(Part.Circle(V(4.5, 0.5, 0), V(0, 0, 1), 1.5), False)
sketch10.addGeometry(Part.Circle(V(-194.5, -25.5, 0), V(0, 0, 1), 1.5), False)
sketch10.addConstraint(Sketcher.Constraint("Equal", 0, 1))
sketch10.addConstraint(Sketcher.Constraint("Equal", 1, 2))
sketch10.addConstraint(Sketcher.Constraint("Vertical", 0, 3, 1, 3))
sketch10.addConstraint(Sketcher.Constraint("Diameter", 0, Q("3 mm")))
sketch10.addConstraint(Sketcher.Constraint("DistanceY", 0, 3, 1, 3, Q("51 mm")))
sketch10.addConstraint(Sketcher.Constraint("DistanceX", 2, 3, 0, 3, Q("199 mm")))
sketch10.addConstraint(Sketcher.Constraint("DistanceY", 0, 3, 2, 3, Q("25 mm")))
sketch10.addConstraint(Sketcher.Constraint("DistanceX", -1, 1, 0, 3, Q("4.5 mm")))
sketch10.addConstraint(Sketcher.Constraint("DistanceY", 0, 3, -1, 1, Q("50.5 mm")))
sketch10.setExpression("Constraints[3]", "Params.sketch10_diameter")
pocket4 = body.newObject("PartDesign::Pocket", "Pocket003")
pocket4.Profile = sketch10
pocket4.Type = "ThroughAll"
pocket4.Reversed = True

doc.recompute()
